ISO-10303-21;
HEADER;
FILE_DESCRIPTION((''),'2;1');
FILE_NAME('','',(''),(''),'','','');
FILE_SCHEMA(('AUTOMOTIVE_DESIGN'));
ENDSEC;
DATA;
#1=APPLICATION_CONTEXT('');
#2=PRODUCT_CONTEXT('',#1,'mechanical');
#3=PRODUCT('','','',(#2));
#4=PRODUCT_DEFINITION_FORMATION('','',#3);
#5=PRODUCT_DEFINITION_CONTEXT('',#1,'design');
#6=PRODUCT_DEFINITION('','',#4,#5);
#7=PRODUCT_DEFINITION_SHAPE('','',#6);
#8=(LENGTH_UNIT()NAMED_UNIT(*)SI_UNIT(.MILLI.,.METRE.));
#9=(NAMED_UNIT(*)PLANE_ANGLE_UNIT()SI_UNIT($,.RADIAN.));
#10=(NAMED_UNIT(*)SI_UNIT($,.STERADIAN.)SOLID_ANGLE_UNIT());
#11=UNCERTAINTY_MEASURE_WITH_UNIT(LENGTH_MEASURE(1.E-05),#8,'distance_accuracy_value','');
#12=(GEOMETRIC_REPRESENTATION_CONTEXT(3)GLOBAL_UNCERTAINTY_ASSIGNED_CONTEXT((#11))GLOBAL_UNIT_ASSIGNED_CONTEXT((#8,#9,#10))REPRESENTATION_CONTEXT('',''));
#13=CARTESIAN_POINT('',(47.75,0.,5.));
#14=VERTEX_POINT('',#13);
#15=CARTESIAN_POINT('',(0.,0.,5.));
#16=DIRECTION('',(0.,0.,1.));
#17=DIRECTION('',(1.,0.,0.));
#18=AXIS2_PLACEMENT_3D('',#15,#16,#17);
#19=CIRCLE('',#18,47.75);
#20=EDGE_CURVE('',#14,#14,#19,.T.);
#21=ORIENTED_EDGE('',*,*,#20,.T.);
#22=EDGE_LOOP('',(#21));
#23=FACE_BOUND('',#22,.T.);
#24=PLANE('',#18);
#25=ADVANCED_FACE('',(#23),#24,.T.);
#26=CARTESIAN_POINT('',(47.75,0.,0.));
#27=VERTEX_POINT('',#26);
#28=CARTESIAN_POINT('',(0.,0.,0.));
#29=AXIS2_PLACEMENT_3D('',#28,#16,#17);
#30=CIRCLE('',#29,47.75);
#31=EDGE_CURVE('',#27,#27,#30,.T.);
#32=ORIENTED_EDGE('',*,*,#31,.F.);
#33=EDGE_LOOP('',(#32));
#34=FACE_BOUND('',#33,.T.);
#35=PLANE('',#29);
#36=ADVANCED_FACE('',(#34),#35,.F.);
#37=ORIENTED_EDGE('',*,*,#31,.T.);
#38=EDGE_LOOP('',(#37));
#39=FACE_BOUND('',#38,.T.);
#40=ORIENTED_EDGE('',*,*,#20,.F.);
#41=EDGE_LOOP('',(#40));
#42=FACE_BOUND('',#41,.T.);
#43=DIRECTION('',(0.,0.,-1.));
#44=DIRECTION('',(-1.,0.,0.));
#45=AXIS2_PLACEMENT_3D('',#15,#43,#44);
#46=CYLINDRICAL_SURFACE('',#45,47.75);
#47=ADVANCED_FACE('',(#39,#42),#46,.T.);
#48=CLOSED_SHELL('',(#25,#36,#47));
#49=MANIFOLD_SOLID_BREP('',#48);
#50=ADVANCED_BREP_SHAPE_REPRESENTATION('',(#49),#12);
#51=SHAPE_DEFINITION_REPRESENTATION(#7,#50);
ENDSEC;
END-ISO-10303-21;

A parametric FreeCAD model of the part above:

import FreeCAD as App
import Part
import Sketcher
from FreeCAD import Vector
Q = App.Units.Quantity

doc = App.newDocument("Part")
body = doc.addObject("PartDesign::Body", "Body")

# Sketch on XY plane
sketch1 = body.newObject("Sketcher::SketchObject", "Sketch")
sketch1.AttachmentSupport = (doc.getObject("XY_Plane"), [""])
sketch1.MapMode = "FlatFace"
sketch1.addGeometry(Part.Circle(Vector(0, 0, 0), Vector(0, 0, 1), 48), False)
sketch1.addConstraint([
    Sketcher.Constraint("Coincident", 0, 3, -1, 1),
    Sketcher.Constraint("Diameter", 0, Q("95.5 mm")),
])
pad1 = body.newObject("PartDesign::Pad", "Pad")
pad1.Profile = sketch1
pad1.Length = 5

doc.recompute()
